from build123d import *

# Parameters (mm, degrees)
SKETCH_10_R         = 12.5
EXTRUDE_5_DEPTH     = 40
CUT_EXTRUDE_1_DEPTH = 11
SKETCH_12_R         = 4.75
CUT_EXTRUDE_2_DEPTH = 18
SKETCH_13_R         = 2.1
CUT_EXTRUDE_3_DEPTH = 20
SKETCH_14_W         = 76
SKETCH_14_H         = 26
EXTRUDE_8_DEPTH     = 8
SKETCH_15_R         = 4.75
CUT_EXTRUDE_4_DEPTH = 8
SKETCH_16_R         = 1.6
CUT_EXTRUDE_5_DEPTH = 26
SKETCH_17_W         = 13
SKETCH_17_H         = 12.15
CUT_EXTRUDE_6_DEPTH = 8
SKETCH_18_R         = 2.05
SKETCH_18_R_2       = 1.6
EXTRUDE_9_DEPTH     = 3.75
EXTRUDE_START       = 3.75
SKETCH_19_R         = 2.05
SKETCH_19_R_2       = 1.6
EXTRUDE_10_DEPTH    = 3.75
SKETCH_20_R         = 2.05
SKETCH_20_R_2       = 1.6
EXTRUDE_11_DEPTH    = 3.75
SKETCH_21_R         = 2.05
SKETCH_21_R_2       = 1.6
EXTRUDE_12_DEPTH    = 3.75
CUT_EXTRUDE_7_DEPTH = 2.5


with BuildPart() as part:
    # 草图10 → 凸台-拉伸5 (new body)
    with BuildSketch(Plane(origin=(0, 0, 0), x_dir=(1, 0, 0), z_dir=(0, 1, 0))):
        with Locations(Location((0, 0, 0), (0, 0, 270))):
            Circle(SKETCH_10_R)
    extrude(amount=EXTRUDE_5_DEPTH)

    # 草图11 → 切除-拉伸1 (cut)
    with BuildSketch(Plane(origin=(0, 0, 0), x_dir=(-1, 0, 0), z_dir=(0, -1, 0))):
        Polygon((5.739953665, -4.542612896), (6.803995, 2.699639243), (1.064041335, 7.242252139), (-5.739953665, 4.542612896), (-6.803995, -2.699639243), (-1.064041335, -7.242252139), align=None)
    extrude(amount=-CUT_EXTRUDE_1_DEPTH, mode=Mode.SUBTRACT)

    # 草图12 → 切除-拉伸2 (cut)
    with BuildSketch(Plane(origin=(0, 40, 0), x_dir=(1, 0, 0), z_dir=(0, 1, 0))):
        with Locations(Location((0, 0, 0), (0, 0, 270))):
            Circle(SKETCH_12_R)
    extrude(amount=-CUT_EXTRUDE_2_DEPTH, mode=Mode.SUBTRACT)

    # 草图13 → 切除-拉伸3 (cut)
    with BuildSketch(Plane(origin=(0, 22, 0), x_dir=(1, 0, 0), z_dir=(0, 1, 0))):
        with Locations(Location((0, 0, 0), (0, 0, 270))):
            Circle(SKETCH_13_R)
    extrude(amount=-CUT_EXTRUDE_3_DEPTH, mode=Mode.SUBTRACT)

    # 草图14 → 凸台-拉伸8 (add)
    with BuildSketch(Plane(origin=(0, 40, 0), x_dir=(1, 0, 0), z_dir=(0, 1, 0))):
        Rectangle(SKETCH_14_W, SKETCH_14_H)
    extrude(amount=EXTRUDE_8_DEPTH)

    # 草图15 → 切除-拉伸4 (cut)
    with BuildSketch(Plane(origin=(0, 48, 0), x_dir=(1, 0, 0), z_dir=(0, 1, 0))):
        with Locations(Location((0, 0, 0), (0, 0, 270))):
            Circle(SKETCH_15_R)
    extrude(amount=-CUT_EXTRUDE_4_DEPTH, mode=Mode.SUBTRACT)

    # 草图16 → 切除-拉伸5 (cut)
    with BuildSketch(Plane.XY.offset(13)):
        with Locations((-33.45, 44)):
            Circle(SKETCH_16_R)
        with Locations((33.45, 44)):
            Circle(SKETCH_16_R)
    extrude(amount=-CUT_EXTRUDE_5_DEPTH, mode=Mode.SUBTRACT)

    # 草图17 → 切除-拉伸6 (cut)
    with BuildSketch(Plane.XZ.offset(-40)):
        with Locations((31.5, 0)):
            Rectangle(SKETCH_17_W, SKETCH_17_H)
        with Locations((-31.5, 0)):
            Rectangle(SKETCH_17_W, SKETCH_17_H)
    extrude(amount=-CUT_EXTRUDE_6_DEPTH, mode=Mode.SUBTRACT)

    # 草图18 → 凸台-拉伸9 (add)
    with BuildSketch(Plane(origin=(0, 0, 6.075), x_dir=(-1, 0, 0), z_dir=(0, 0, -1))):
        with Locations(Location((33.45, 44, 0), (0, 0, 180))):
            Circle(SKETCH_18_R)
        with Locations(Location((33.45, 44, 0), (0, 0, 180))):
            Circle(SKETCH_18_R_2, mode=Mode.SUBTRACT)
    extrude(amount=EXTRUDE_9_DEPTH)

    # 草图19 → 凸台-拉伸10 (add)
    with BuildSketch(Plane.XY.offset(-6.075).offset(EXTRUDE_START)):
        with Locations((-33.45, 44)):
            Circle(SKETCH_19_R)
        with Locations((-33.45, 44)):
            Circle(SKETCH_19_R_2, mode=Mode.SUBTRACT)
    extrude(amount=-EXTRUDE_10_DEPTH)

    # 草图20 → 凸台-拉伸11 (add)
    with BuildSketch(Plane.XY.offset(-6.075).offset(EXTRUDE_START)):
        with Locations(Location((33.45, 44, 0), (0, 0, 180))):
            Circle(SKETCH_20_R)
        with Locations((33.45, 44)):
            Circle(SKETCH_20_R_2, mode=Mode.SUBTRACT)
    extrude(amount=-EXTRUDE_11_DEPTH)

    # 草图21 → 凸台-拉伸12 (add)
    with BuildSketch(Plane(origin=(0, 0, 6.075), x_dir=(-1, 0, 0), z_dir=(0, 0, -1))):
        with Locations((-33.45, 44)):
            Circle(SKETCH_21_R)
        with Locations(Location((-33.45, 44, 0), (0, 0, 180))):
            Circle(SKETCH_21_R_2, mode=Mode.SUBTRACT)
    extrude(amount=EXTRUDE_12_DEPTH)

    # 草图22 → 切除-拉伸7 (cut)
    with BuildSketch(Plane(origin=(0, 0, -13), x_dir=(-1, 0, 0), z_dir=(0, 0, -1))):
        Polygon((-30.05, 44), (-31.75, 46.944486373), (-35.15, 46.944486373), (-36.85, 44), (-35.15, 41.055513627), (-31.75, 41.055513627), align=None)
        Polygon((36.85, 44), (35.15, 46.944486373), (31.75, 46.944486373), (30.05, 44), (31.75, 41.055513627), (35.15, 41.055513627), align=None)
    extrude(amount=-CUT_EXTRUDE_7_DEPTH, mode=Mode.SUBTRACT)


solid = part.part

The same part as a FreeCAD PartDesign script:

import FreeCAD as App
import Part
import Sketcher
from FreeCAD import Vector
Q = App.Units.Quantity

doc = App.newDocument("Part")
body = doc.addObject("PartDesign::Body", "Body")

# Sketch on XZ plane
sketch1 = body.newObject("Sketcher::SketchObject", "Sketch")
sketch1.AttachmentSupport = (doc.getObject("XZ_Plane"), [""])
sketch1.MapMode = "FlatFace"
sketch1.addGeometry(Part.Circle(Vector(0, 0, 0), Vector(0, 0, 1), 12.5), False)
sketch1.addConstraint(Sketcher.Constraint("Coincident", 0, 3, -1, 1))
sketch1.addConstraint(Sketcher.Constraint("Diameter", 0, 25.0))
pad1 = body.newObject("PartDesign::Pad", "Pad")
pad1.Profile = sketch1
pad1.Length = 40
pad1.Reversed = True

# Sketch on XZ plane
sketch2 = body.newObject("Sketcher::SketchObject", "Sketch001")
sketch2.AttachmentSupport = (doc.getObject("XZ_Plane"), [""])
sketch2.MapMode = "FlatFace"
sketch2.addGeometry(Part.LineSegment(Vector(-5.739954, 4.542613, 0), Vector(-6.803995, -2.699639, 0)), False)
sketch2.addGeometry(Part.LineSegment(Vector(-6.803995, -2.699639, 0), Vector(-1.064041, -7.242252, 0)), False)
sketch2.addGeometry(Part.LineSegment(Vector(-1.064041, -7.242252, 0), Vector(5.739954, -4.542613, 0)), False)
sketch2.addGeometry(Part.LineSegment(Vector(5.739954, -4.542613, 0), Vector(6.803995, 2.699639, 0)), False)
sketch2.addGeometry(Part.LineSegment(Vector(6.803995, 2.699639, 0), Vector(1.064041, 7.242252, 0)), False)
sketch2.addGeometry(Part.LineSegment(Vector(1.064041, 7.242252, 0), Vector(-5.739954, 4.542613, 0)), False)
sketch2.addConstraint(Sketcher.Constraint("Coincident", 0, 2, 1, 1))
sketch2.addConstraint(Sketcher.Constraint("Coincident", 1, 2, 2, 1))
sketch2.addConstraint(Sketcher.Constraint("Coincident", 2, 2, 3, 1))
sketch2.addConstraint(Sketcher.Constraint("Coincident", 3, 2, 4, 1))
sketch2.addConstraint(Sketcher.Constraint("Coincident", 4, 2, 5, 1))
sketch2.addConstraint(Sketcher.Constraint("Coincident", 5, 2, 0, 1))
sketch2.addConstraint(Sketcher.Constraint("Symmetric", 0, 2, 3, 2, -1, 1))
sketch2.addConstraint(Sketcher.Constraint("Symmetric", 1, 2, 4, 2, -1, 1))
sketch2.addConstraint(Sketcher.Constraint("Symmetric", 2, 2, 5, 2, -1, 1))
sketch2.addConstraint(Sketcher.Constraint("Equal", 0, 1))
sketch2.addConstraint(Sketcher.Constraint("Equal", 1, 2))
sketch2.addConstraint(Sketcher.Constraint("Distance", 0, 7.32))
sketch2.addConstraint(Sketcher.Constraint("DistanceY", 0, 2, -1, 1, 2.699639))
sketch2.addConstraint(Sketcher.Constraint("DistanceX", 1, 2, -1, 1, 1.064041))
sketch2.addConstraint(Sketcher.Constraint("DistanceY", 1, 2, 2, 2, 2.699639))
pocket1 = body.newObject("PartDesign::Pocket", "Pocket")
pocket1.Profile = sketch2
pocket1.Length = 11

# Sketch on XZ plane
sketch3 = body.newObject("Sketcher::SketchObject", "Sketch002")
sketch3.AttachmentSupport = (doc.getObject("XZ_Plane"), [""])
sketch3.MapMode = "FlatFace"
sketch3.AttachmentOffset = App.Placement(Vector(0, 0, -40), App.Rotation())
sketch3.addGeometry(Part.Circle(Vector(0, 0, 0), Vector(0, 0, 1), 4.75), False)
sketch3.addConstraint(Sketcher.Constraint("Coincident", 0, 3, -1, 1))
sketch3.addConstraint(Sketcher.Constraint("Diameter", 0, 9.5))
pocket2 = body.newObject("PartDesign::Pocket", "Pocket001")
pocket2.Profile = sketch3
pocket2.Length = 18
pocket2.Reversed = True

# Sketch on XZ plane
sketch4 = body.newObject("Sketcher::SketchObject", "Sketch003")
sketch4.AttachmentSupport = (doc.getObject("XZ_Plane"), [""])
sketch4.MapMode = "FlatFace"
sketch4.AttachmentOffset = App.Placement(Vector(0, 0, -22), App.Rotation())
sketch4.addGeometry(Part.Circle(Vector(0, 0, 0), Vector(0, 0, 1), 2.1), False)
sketch4.addConstraint(Sketcher.Constraint("Coincident", 0, 3, -1, 1))
sketch4.addConstraint(Sketcher.Constraint("Diameter", 0, 4.2))
pocket3 = body.newObject("PartDesign::Pocket", "Pocket002")
pocket3.Profile = sketch4
pocket3.Length = 20
pocket3.Reversed = True

# Sketch on XZ plane
sketch5 = body.newObject("Sketcher::SketchObject", "Sketch004")
sketch5.AttachmentSupport = (doc.getObject("XZ_Plane"), [""])
sketch5.MapMode = "FlatFace"
sketch5.AttachmentOffset = App.Placement(Vector(0, 0, -40), App.Rotation())
sketch5.addGeometry(Part.LineSegment(Vector(-38, -13, 0), Vector(-38, 13, 0)), False)
sketch5.addGeometry(Part.LineSegment(Vector(-38, 13, 0), Vector(38, 13, 0)), False)
sketch5.addGeometry(Part.LineSegment(Vector(38, 13, 0), Vector(38, -13, 0)), False)
sketch5.addGeometry(Part.LineSegment(Vector(38, -13, 0), Vector(-38, -13, 0)), False)
sketch5.addConstraint(Sketcher.Constraint("Coincident", 0, 2, 1, 1))
sketch5.addConstraint(Sketcher.Constraint("Coincident", 1, 2, 2, 1))
sketch5.addConstraint(Sketcher.Constraint("Coincident", 2, 2, 3, 1))
sketch5.addConstraint(Sketcher.Constraint("Coincident", 3, 2, 0, 1))
sketch5.addConstraint(Sketcher.Constraint("Vertical", 0))
sketch5.addConstraint(Sketcher.Constraint("Horizontal", 1))
sketch5.addConstraint(Sketcher.Constraint("Vertical", 2))
sketch5.addConstraint(Sketcher.Constraint("Horizontal", 3))
sketch5.addConstraint(Sketcher.Constraint("Symmetric", 0, 2, 2, 2, -1, 1))
sketch5.addConstraint(Sketcher.Constraint("DistanceX", 1, 1, 1, 2, 76.0))
sketch5.addConstraint(Sketcher.Constraint("DistanceY", 0, 1, 0, 2, 26.0))
pad2 = body.newObject("PartDesign::Pad", "Pad001")
pad2.Profile = sketch5
pad2.Length = 8
pad2.Reversed = True

# Sketch on XZ plane
sketch6 = body.newObject("Sketcher::SketchObject", "Sketch005")
sketch6.AttachmentSupport = (doc.getObject("XZ_Plane"), [""])
sketch6.MapMode = "FlatFace"
sketch6.AttachmentOffset = App.Placement(Vector(0, 0, -48), App.Rotation())
sketch6.addGeometry(Part.Circle(Vector(0, 0, 0), Vector(0, 0, 1), 4.75), False)
sketch6.addConstraint(Sketcher.Constraint("Coincident", 0, 3, -1, 1))
sketch6.addConstraint(Sketcher.Constraint("Diameter", 0, 9.5))
pocket4 = body.newObject("PartDesign::Pocket", "Pocket003")
pocket4.Profile = sketch6
pocket4.Length = 8
pocket4.Reversed = True

# Sketch on XY plane
sketch7 = body.newObject("Sketcher::SketchObject", "Sketch006")
sketch7.AttachmentSupport = (doc.getObject("XY_Plane"), [""])
sketch7.MapMode = "FlatFace"
sketch7.AttachmentOffset = App.Placement(Vector(0, 0, 13), App.Rotation())
sketch7.addGeometry(Part.Circle(Vector(-33.45, 44, 0), Vector(0, 0, 1), 1.6), False)
sketch7.addGeometry(Part.Circle(Vector(33.45, 44, 0), Vector(0, 0, 1), 1.6), False)
sketch7.addConstraint(Sketcher.Constraint("Equal", 0, 1))
sketch7.addConstraint(Sketcher.Constraint("Symmetric", 0, 3, 1, 3, -2))
sketch7.addConstraint(Sketcher.Constraint("Diameter", 0, 3.2))
sketch7.addConstraint(Sketcher.Constraint("DistanceY", -1, 1, 0, 3, 44.0))
sketch7.addConstraint(Sketcher.Constraint("DistanceX", 0, 3, 1, 3, 66.9))
pocket5 = body.newObject("PartDesign::Pocket", "Pocket004")
pocket5.Profile = sketch7
pocket5.Length = 26

# Sketch on XZ plane
sketch8 = body.newObject("Sketcher::SketchObject", "Sketch007")
sketch8.AttachmentSupport = (doc.getObject("XZ_Plane"), [""])
sketch8.MapMode = "FlatFace"
sketch8.AttachmentOffset = App.Placement(Vector(0, 0, -40), App.Rotation())
sketch8.addGeometry(Part.LineSegment(Vector(25, 6.075, 0), Vector(25, -6.075, 0)), False)
sketch8.addGeometry(Part.LineSegment(Vector(25, -6.075, 0), Vector(38, -6.075, 0)), False)
sketch8.addGeometry(Part.LineSegment(Vector(38, -6.075, 0), Vector(38, 6.075, 0)), False)
sketch8.addGeometry(Part.LineSegment(Vector(38, 6.075, 0), Vector(25, 6.075, 0)), False)
sketch8.addGeometry(Part.LineSegment(Vector(-38, 6.075, 0), Vector(-38, -6.075, 0)), False)
sketch8.addGeometry(Part.LineSegment(Vector(-38, -6.075, 0), Vector(-25, -6.075, 0)), False)
sketch8.addGeometry(Part.LineSegment(Vector(-25, -6.075, 0), Vector(-25, 6.075, 0)), False)
sketch8.addGeometry(Part.LineSegment(Vector(-25, 6.075, 0), Vector(-38, 6.075, 0)), False)
sketch8.addConstraint(Sketcher.Constraint("Coincident", 0, 2, 1, 1))
sketch8.addConstraint(Sketcher.Constraint("Coincident", 1, 2, 2, 1))
sketch8.addConstraint(Sketcher.Constraint("Coincident", 2, 2, 3, 1))
sketch8.addConstraint(Sketcher.Constraint("Coincident", 3, 2, 0, 1))
sketch8.addConstraint(Sketcher.Constraint("Coincident", 4, 2, 5, 1))
sketch8.addConstraint(Sketcher.Constraint("Coincident", 5, 2, 6, 1))
sketch8.addConstraint(Sketcher.Constraint("Coincident", 6, 2, 7, 1))
sketch8.addConstraint(Sketcher.Constraint("Coincident", 7, 2, 4, 1))
sketch8.addConstraint(Sketcher.Constraint("Vertical", 0))
sketch8.addConstraint(Sketcher.Constraint("Horizontal", 1))
sketch8.addConstraint(Sketcher.Constraint("Vertical", 2))
sketch8.addConstraint(Sketcher.Constraint("Horizontal", 3))
sketch8.addConstraint(Sketcher.Constraint("Vertical", 4))
sketch8.addConstraint(Sketcher.Constraint("Horizontal", 5))
sketch8.addConstraint(Sketcher.Constraint("Vertical", 6))
sketch8.addConstraint(Sketcher.Constraint("Horizontal", 7))
sketch8.addConstraint(Sketcher.Constraint("Symmetric", 2, 2, 4, 2, -1, 1))
sketch8.addConstraint(Sketcher.Constraint("Symmetric", 0, 2, 6, 2, -1, 1))
sketch8.addConstraint(Sketcher.Constraint("Horizontal", 1, 2, 4, 2))
sketch8.addConstraint(Sketcher.Constraint("DistanceX", 1, 1, 1, 2, 13.0))
sketch8.addConstraint(Sketcher.Constraint("DistanceX", -1, 1, 0, 2, 25.0))
sketch8.addConstraint(Sketcher.Constraint("DistanceY", 0, 2, 0, 1, 12.15))
pocket6 = body.newObject("PartDesign::Pocket", "Pocket005")
pocket6.Profile = sketch8
pocket6.Length = 8

# Sketch on XY plane
sketch9 = body.newObject("Sketcher::SketchObject", "Sketch008")
sketch9.AttachmentSupport = (doc.getObject("XY_Plane"), [""])
sketch9.MapMode = "FlatFace"
sketch9.AttachmentOffset = App.Placement(Vector(0, 0, 6.075), App.Rotation())
sketch9.addGeometry(Part.Circle(Vector(-33.45, 44, 0), Vector(0, 0, 1), 2.05), False)
sketch9.addGeometry(Part.Circle(Vector(-33.45, 44, 0), Vector(0, 0, 1), 1.6), False)
sketch9.addConstraint(Sketcher.Constraint("Coincident", 1, 3, 0, 3))
sketch9.addConstraint(Sketcher.Constraint("Diameter", 0, 4.1))
sketch9.addConstraint(Sketcher.Constraint("Diameter", 1, 3.2))
sketch9.addConstraint(Sketcher.Constraint("DistanceY", -1, 1, 0, 3, 44.0))
sketch9.addConstraint(Sketcher.Constraint("DistanceX", 0, 3, -1, 1, 33.45))
pad3 = body.newObject("PartDesign::Pad", "Pad002")
pad3.Profile = sketch9
pad3.Length = 3.75
pad3.Reversed = True

# Sketch on XY plane
sketch10 = body.newObject("Sketcher::SketchObject", "Sketch009")
sketch10.AttachmentSupport = (doc.getObject("XY_Plane"), [""])
sketch10.MapMode = "FlatFace"
sketch10.AttachmentOffset = App.Placement(Vector(0, 0, -2.325), App.Rotation())
sketch10.addGeometry(Part.Circle(Vector(-33.45, 44, 0), Vector(0, 0, 1), 2.05), False)
sketch10.addGeometry(Part.Circle(Vector(-33.45, 44, 0), Vector(0, 0, 1), 1.6), False)
sketch10.addConstraint(Sketcher.Constraint("Coincident", 1, 3, 0, 3))
sketch10.addConstraint(Sketcher.Constraint("Diameter", 0, 4.1))
sketch10.addConstraint(Sketcher.Constraint("Diameter", 1, 3.2))
sketch10.addConstraint(Sketcher.Constraint("DistanceY", -1, 1, 0, 3, 44.0))
sketch10.addConstraint(Sketcher.Constraint("DistanceX", 0, 3, -1, 1, 33.45))
pad4 = body.newObject("PartDesign::Pad", "Pad003")
pad4.Profile = sketch10
pad4.Length = 3.75
pad4.Reversed = True

# Sketch on XY plane
sketch11 = body.newObject("Sketcher::SketchObject", "Sketch010")
sketch11.AttachmentSupport = (doc.getObject("XY_Plane"), [""])
sketch11.MapMode = "FlatFace"
sketch11.AttachmentOffset = App.Placement(Vector(0, 0, -2.325), App.Rotation())
sketch11.addGeometry(Part.Circle(Vector(33.45, 44, 0), Vector(0, 0, 1), 2.05), False)
sketch11.addGeometry(Part.Circle(Vector(33.45, 44, 0), Vector(0, 0, 1), 1.6), False)
sketch11.addConstraint(Sketcher.Constraint("Coincident", 1, 3, 0, 3))
sketch11.addConstraint(Sketcher.Constraint("Diameter", 0, 4.1))
sketch11.addConstraint(Sketcher.Constraint("Diameter", 1, 3.2))
sketch11.addConstraint(Sketcher.Constraint("DistanceY", -1, 1, 0, 3, 44.0))
sketch11.addConstraint(Sketcher.Constraint("DistanceX", -1, 1, 0, 3, 33.45))
pad5 = body.newObject("PartDesign::Pad", "Pad004")
pad5.Profile = sketch11
pad5.Length = 3.75
pad5.Reversed = True

# Sketch on XY plane
sketch12 = body.newObject("Sketcher::SketchObject", "Sketch011")
sketch12.AttachmentSupport = (doc.getObject("XY_Plane"), [""])
sketch12.MapMode = "FlatFace"
sketch12.AttachmentOffset = App.Placement(Vector(0, 0, 6.075), App.Rotation())
sketch12.addGeometry(Part.Circle(Vector(33.45, 44, 0), Vector(0, 0, 1), 2.05), False)
sketch12.addGeometry(Part.Circle(Vector(33.45, 44, 0), Vector(0, 0, 1), 1.6), False)
sketch12.addConstraint(Sketcher.Constraint("Coincident", 1, 3, 0, 3))
sketch12.addConstraint(Sketcher.Constraint("Diameter", 0, 4.1))
sketch12.addConstraint(Sketcher.Constraint("Diameter", 1, 3.2))
sketch12.addConstraint(Sketcher.Constraint("DistanceY", -1, 1, 0, 3, 44.0))
sketch12.addConstraint(Sketcher.Constraint("DistanceX", -1, 1, 0, 3, 33.45))
pad6 = body.newObject("PartDesign::Pad", "Pad005")
pad6.Profile = sketch12
pad6.Length = 3.75
pad6.Reversed = True

# Sketch on XY plane
sketch13 = body.newObject("Sketcher::SketchObject", "Sketch012")
sketch13.AttachmentSupport = (doc.getObject("XY_Plane"), [""])
sketch13.MapMode = "FlatFace"
sketch13.AttachmentOffset = App.Placement(Vector(0, 0, -13), App.Rotation())
sketch13.addGeometry(Part.LineSegment(Vector(30.05, 44, 0), Vector(31.75, 46.944486, 0)), False)
sketch13.addGeometry(Part.LineSegment(Vector(31.75, 46.944486, 0), Vector(35.15, 46.944486, 0)), False)
sketch13.addGeometry(Part.LineSegment(Vector(35.15, 46.944486, 0), Vector(36.85, 44, 0)), False)
sketch13.addGeometry(Part.LineSegment(Vector(36.85, 44, 0), Vector(35.15, 41.055514, 0)), False)
sketch13.addGeometry(Part.LineSegment(Vector(35.15, 41.055514, 0), Vector(31.75, 41.055514, 0)), False)
sketch13.addGeometry(Part.LineSegment(Vector(31.75, 41.055514, 0), Vector(30.05, 44, 0)), False)
sketch13.addGeometry(Part.LineSegment(Vector(-36.85, 44, 0), Vector(-35.15, 46.944486, 0)), False)
sketch13.addGeometry(Part.LineSegment(Vector(-35.15, 46.944486, 0), Vector(-31.75, 46.944486, 0)), False)
sketch13.addGeometry(Part.LineSegment(Vector(-31.75, 46.944486, 0), Vector(-30.05, 44, 0)), False)
sketch13.addGeometry(Part.LineSegment(Vector(-30.05, 44, 0), Vector(-31.75, 41.055514, 0)), False)
sketch13.addGeometry(Part.LineSegment(Vector(-31.75, 41.055514, 0), Vector(-35.15, 41.055514, 0)), False)
sketch13.addGeometry(Part.LineSegment(Vector(-35.15, 41.055514, 0), Vector(-36.85, 44, 0)), False)
sketch13.addConstraint(Sketcher.Constraint("Coincident", 0, 2, 1, 1))
sketch13.addConstraint(Sketcher.Constraint("Coincident", 1, 2, 2, 1))
sketch13.addConstraint(Sketcher.Constraint("Coincident", 2, 2, 3, 1))
sketch13.addConstraint(Sketcher.Constraint("Coincident", 3, 2, 4, 1))
sketch13.addConstraint(Sketcher.Constraint("Coincident", 4, 2, 5, 1))
sketch13.addConstraint(Sketcher.Constraint("Coincident", 5, 2, 0, 1))
sketch13.addConstraint(Sketcher.Constraint("Coincident", 6, 2, 7, 1))
sketch13.addConstraint(Sketcher.Constraint("Coincident", 7, 2, 8, 1))
sketch13.addConstraint(Sketcher.Constraint("Coincident", 8, 2, 9, 1))
sketch13.addConstraint(Sketcher.Constraint("Coincident", 9, 2, 10, 1))
sketch13.addConstraint(Sketcher.Constraint("Coincident", 10, 2, 11, 1))
sketch13.addConstraint(Sketcher.Constraint("Coincident", 11, 2, 6, 1))
sketch13.addConstraint(Sketcher.Constraint("Horizontal", 1))
sketch13.addConstraint(Sketcher.Constraint("Horizontal", 4))
sketch13.addConstraint(Sketcher.Constraint("Horizontal", 7))
sketch13.addConstraint(Sketcher.Constraint("Horizontal", 10))
sketch13.addConstraint(Sketcher.Constraint("Symmetric", 1, 2, 6, 2, -2))
sketch13.addConstraint(Sketcher.Constraint("Symmetric", 5, 2, 8, 2, -2))
sketch13.addConstraint(Sketcher.Constraint("Symmetric", 4, 2, 9, 2, -2))
sketch13.addConstraint(Sketcher.Constraint("Symmetric", 2, 2, 11, 2, -2))
sketch13.addConstraint(Sketcher.Constraint("Parallel", 0, 3))
sketch13.addConstraint(Sketcher.Constraint("Parallel", 2, 5))
sketch13.addConstraint(Sketcher.Constraint("Parallel", 3, 6))
sketch13.addConstraint(Sketcher.Constraint("Parallel", 5, 8))
sketch13.addConstraint(Sketcher.Constraint("Parallel", 8, 11))
sketch13.addConstraint(Sketcher.Constraint("Horizontal", 2, 2, 5, 2))
sketch13.addConstraint(Sketcher.Constraint("Vertical", 1, 2, 3, 2))
sketch13.addConstraint(Sketcher.Constraint("Angle", 0, Q("60 deg")))
sketch13.addConstraint(Sketcher.Constraint("DistanceX", 1, 1, 1, 2, 3.4))
sketch13.addConstraint(Sketcher.Constraint("DistanceY", -1, 1, 2, 2, 44.0))
sketch13.addConstraint(Sketcher.Constraint("Distance", 0, 3.4))
sketch13.addConstraint(Sketcher.Constraint("DistanceX", 6, 2, 5, 2, 65.2))
pocket7 = body.newObject("PartDesign::Pocket", "Pocket006")
pocket7.Profile = sketch13
pocket7.Length = 2.5
pocket7.Reversed = True

doc.recompute()
